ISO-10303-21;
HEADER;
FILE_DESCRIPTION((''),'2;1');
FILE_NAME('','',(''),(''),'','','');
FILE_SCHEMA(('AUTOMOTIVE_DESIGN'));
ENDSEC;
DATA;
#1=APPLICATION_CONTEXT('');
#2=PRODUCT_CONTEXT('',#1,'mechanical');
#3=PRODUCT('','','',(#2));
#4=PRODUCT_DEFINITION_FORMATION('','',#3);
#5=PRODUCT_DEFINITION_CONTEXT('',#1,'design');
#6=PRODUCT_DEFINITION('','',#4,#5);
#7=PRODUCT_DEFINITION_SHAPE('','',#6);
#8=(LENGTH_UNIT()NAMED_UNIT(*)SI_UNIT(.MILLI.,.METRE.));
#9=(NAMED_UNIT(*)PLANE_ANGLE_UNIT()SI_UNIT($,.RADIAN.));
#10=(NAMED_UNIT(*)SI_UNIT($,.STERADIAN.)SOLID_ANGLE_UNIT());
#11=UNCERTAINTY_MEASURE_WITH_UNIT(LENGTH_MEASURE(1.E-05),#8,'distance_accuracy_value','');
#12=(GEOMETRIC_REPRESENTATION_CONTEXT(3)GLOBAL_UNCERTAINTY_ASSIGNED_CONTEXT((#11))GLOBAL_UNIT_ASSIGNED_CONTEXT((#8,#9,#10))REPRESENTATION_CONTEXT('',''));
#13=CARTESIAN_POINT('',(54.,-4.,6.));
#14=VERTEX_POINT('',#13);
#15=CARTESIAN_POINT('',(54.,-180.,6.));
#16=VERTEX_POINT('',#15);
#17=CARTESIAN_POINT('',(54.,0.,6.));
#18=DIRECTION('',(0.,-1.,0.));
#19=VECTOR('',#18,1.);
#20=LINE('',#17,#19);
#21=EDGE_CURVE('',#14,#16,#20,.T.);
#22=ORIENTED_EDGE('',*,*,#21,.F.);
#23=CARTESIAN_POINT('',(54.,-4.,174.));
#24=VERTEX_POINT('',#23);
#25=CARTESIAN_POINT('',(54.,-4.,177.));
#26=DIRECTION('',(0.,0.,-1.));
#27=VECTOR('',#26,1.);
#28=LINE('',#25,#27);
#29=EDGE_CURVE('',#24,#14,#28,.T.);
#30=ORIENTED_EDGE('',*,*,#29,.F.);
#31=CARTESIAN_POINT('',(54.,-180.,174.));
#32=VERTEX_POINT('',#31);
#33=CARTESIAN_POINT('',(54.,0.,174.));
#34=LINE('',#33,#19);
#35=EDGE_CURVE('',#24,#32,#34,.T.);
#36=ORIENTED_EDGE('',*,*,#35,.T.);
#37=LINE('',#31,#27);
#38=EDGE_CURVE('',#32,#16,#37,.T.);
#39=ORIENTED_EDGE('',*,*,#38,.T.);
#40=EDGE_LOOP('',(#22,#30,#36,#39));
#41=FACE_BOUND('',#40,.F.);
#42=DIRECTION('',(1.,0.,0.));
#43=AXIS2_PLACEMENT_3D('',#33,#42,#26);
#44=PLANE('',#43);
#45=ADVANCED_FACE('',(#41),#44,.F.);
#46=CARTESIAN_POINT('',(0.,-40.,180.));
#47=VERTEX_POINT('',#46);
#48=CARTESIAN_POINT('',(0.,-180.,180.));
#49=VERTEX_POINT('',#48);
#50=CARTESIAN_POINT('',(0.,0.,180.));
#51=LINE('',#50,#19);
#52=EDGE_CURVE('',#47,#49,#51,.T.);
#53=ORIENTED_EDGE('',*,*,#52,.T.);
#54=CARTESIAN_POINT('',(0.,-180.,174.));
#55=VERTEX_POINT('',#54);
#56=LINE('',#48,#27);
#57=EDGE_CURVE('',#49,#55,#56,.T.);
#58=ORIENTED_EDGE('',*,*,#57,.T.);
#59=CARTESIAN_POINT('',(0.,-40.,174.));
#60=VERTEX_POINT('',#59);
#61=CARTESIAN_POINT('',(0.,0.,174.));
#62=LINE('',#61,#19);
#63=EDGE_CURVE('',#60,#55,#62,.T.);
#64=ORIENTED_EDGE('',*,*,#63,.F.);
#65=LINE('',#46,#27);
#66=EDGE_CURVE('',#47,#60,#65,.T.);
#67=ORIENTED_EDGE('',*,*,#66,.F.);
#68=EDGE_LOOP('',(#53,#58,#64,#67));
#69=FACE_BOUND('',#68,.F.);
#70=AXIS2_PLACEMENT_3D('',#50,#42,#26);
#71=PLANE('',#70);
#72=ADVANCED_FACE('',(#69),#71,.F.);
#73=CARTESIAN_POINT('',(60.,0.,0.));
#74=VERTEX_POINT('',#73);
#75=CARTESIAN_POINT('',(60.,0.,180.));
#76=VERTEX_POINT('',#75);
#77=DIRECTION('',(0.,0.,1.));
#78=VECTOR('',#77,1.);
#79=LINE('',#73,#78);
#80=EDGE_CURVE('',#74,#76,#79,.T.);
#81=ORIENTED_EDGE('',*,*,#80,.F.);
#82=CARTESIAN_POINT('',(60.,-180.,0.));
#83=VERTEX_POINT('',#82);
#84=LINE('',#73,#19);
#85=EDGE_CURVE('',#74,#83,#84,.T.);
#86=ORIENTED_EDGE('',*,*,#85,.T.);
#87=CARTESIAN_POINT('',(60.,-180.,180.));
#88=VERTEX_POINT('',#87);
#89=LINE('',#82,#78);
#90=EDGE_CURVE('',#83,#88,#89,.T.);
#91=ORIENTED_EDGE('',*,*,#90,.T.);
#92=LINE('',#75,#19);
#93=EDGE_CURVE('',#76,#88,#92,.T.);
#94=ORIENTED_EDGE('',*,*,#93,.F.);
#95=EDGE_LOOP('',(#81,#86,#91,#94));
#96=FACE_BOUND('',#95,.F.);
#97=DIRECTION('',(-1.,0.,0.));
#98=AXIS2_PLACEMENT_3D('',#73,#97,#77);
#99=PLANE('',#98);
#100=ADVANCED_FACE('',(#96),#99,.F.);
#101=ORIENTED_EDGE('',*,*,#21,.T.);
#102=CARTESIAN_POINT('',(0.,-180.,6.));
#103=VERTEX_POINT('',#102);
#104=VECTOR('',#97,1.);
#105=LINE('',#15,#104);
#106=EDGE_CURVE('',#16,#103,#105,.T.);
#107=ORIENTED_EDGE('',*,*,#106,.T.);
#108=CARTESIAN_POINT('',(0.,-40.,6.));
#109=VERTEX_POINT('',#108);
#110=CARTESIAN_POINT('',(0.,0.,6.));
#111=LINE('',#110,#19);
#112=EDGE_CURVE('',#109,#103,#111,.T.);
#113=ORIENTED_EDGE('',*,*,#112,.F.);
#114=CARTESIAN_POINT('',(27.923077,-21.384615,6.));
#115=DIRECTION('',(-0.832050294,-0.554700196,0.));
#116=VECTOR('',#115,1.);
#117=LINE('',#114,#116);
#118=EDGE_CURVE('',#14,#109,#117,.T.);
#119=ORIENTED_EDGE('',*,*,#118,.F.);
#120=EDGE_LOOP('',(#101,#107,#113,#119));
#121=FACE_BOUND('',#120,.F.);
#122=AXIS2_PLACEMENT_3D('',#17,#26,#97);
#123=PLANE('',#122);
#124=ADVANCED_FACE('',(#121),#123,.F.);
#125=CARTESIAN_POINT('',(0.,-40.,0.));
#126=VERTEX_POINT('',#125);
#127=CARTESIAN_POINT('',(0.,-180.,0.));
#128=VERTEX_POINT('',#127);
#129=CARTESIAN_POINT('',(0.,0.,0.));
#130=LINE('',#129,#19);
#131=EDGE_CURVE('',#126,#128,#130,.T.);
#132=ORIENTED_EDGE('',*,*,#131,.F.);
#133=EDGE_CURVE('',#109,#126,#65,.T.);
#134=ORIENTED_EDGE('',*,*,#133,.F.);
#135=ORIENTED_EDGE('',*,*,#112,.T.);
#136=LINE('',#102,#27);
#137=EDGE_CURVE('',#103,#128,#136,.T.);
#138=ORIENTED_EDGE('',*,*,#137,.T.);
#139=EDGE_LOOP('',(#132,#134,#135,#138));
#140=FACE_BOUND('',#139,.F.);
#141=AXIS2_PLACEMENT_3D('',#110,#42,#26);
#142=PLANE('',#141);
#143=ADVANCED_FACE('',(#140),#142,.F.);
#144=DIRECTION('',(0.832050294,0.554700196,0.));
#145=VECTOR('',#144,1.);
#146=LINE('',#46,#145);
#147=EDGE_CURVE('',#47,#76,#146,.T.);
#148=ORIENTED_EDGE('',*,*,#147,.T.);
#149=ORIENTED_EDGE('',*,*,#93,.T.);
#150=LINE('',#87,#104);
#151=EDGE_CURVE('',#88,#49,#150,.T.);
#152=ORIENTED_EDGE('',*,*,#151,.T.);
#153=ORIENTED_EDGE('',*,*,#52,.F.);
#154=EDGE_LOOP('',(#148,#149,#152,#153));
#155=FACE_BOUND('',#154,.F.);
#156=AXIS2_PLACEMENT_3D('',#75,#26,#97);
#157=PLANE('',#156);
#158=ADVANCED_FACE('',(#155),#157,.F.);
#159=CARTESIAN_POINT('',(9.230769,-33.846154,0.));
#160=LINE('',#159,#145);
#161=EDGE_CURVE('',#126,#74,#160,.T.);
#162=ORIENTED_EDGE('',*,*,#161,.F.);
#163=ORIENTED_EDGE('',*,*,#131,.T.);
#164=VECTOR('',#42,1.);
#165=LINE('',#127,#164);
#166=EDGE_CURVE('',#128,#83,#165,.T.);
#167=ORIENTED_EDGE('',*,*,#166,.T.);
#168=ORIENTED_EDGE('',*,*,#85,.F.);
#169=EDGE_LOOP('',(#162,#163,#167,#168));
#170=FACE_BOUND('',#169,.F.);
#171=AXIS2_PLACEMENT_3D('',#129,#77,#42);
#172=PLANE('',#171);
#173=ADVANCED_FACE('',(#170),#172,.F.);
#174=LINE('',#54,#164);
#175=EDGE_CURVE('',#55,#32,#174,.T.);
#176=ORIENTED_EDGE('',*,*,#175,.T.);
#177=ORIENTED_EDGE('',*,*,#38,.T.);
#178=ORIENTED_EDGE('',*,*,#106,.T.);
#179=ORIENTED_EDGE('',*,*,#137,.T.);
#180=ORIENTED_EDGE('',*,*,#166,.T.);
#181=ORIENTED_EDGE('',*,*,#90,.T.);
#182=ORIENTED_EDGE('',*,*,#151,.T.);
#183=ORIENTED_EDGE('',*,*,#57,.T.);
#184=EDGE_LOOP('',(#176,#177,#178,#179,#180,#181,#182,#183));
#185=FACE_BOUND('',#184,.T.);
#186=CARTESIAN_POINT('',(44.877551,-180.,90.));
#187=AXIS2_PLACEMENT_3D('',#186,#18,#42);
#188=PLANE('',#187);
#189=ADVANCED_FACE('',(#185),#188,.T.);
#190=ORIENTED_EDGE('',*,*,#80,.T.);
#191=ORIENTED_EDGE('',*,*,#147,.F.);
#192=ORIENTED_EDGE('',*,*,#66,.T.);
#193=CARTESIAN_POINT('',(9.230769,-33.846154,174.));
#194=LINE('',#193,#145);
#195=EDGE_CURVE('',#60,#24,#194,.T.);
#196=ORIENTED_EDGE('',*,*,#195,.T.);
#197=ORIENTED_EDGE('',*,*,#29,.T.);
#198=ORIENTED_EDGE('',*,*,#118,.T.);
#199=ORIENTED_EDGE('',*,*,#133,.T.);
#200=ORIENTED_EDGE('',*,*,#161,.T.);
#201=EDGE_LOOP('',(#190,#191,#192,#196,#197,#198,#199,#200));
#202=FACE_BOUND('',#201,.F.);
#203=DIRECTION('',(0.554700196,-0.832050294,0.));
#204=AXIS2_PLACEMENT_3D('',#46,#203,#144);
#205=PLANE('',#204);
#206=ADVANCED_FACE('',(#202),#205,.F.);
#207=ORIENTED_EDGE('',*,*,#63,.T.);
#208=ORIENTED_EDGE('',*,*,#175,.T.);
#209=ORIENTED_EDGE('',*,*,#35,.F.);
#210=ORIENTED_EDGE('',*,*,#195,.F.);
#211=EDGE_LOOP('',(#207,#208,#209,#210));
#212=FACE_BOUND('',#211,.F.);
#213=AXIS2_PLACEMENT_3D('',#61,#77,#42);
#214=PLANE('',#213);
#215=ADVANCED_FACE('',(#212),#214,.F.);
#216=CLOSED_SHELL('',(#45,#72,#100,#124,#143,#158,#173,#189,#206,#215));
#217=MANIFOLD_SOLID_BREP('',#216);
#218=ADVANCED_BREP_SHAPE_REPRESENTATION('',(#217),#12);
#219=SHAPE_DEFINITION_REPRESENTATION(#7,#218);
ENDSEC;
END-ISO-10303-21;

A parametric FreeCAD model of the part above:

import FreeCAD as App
import Part
import Sketcher


def add_polygon(sketch, points):
    """Adds a closed chain of lines whose ends are joined by coincident constraints."""
    first, n = sketch.GeometryCount, len(points)
    for a, b in zip(points, points[1:] + points[:1]):
        sketch.addGeometry(Part.LineSegment(App.Vector(*a, 0), App.Vector(*b, 0)), False)
    for i in range(n):
        sketch.addConstraint(Sketcher.Constraint("Coincident", first + i, 2, first + (i + 1) % n, 1))

doc = App.newDocument("Part")
params = doc.addObject("Spreadsheet::Sheet", "Params")
for row, (alias, value) in enumerate([
    ("sketch1_width", "60 mm"),
    ("sketch1_width2", "54 mm"),
    ("sketch1_height", "6 mm"),
    ("sketch1_height2", "168 mm"),
    ("pad1_length", "180 mm"),
    ("sketch2_width", "60 mm"),
    ("sketch2_height", "40 mm"),
], start=1):
    params.set(f"A{row}", alias)
    params.set(f"B{row}", "=" + value)
    params.setAlias(f"B{row}", alias)

body = doc.addObject("PartDesign::Body", "Body")

sketch1 = body.newObject("Sketcher::SketchObject", "Sketch")
sketch1.AttachmentSupport = (doc.getObject("XZ_Plane"), [""])
sketch1.MapMode = "FlatFace"
add_polygon(sketch1, [(60, 180), (0, 180), (0, 174), (54, 174), (54, 6), (0, 6), (0, 0), (60, 0)])
sketch1.addConstraint(Sketcher.Constraint("Horizontal", 0))
sketch1.addConstraint(Sketcher.Constraint("Vertical", 1))
sketch1.addConstraint(Sketcher.Constraint("Horizontal", 2))
sketch1.addConstraint(Sketcher.Constraint("Vertical", 3))
sketch1.addConstraint(Sketcher.Constraint("Horizontal", 4))
sketch1.addConstraint(Sketcher.Constraint("Vertical", 5))
sketch1.addConstraint(Sketcher.Constraint("Horizontal", 6))
sketch1.addConstraint(Sketcher.Constraint("Vertical", 7))
sketch1.addConstraint(Sketcher.Constraint("Coincident", 5, 2, -1, 1))
sketch1.addConstraint(Sketcher.Constraint("PointOnObject", 0, 2, -2))
sketch1.addConstraint(Sketcher.Constraint("Equal", 1, 5))
sketch1.addConstraint(Sketcher.Constraint("DistanceX", 0, 2, 0, 1, 60.0))
sketch1.addConstraint(Sketcher.Constraint("DistanceX", 2, 1, 2, 2, 54.0))
sketch1.addConstraint(Sketcher.Constraint("DistanceY", 1, 2, 1, 1, 6.0))
sketch1.addConstraint(Sketcher.Constraint("DistanceY", 3, 2, 3, 1, 168.0))
sketch1.setExpression("Constraints[19]", "Params.sketch1_width")
sketch1.setExpression("Constraints[20]", "Params.sketch1_width2")
sketch1.setExpression("Constraints[21]", "Params.sketch1_height")
sketch1.setExpression("Constraints[22]", "Params.sketch1_height2")
pad1 = body.newObject("PartDesign::Pad", "Pad")
pad1.Profile = sketch1
pad1.setExpression("Length", "Params.pad1_length")

sketch2 = body.newObject("Sketcher::SketchObject", "Sketch001")
sketch2.AttachmentSupport = (doc.getObject("XY_Plane"), [""])
sketch2.MapMode = "FlatFace"
sketch2.AttachmentOffset = App.Placement(App.Vector(0, 0, 180), App.Rotation())
add_polygon(sketch2, [(60, 0), (0, 0), (0, -40)])
sketch2.addConstraint(Sketcher.Constraint("Horizontal", 0))
sketch2.addConstraint(Sketcher.Constraint("Vertical", 1))
sketch2.addConstraint(Sketcher.Constraint("Coincident", 0, 2, -1, 1))
sketch2.addConstraint(Sketcher.Constraint("DistanceX", 0, 2, 0, 1, 60.0))
sketch2.addConstraint(Sketcher.Constraint("DistanceY", 1, 2, 1, 1, 40.0))
sketch2.setExpression("Constraints[6]", "Params.sketch2_width")
sketch2.setExpression("Constraints[7]", "Params.sketch2_height")
pocket1 = body.newObject("PartDesign::Pocket", "Pocket")
pocket1.Profile = sketch2
pocket1.Type = "ThroughAll"

doc.recompute()
